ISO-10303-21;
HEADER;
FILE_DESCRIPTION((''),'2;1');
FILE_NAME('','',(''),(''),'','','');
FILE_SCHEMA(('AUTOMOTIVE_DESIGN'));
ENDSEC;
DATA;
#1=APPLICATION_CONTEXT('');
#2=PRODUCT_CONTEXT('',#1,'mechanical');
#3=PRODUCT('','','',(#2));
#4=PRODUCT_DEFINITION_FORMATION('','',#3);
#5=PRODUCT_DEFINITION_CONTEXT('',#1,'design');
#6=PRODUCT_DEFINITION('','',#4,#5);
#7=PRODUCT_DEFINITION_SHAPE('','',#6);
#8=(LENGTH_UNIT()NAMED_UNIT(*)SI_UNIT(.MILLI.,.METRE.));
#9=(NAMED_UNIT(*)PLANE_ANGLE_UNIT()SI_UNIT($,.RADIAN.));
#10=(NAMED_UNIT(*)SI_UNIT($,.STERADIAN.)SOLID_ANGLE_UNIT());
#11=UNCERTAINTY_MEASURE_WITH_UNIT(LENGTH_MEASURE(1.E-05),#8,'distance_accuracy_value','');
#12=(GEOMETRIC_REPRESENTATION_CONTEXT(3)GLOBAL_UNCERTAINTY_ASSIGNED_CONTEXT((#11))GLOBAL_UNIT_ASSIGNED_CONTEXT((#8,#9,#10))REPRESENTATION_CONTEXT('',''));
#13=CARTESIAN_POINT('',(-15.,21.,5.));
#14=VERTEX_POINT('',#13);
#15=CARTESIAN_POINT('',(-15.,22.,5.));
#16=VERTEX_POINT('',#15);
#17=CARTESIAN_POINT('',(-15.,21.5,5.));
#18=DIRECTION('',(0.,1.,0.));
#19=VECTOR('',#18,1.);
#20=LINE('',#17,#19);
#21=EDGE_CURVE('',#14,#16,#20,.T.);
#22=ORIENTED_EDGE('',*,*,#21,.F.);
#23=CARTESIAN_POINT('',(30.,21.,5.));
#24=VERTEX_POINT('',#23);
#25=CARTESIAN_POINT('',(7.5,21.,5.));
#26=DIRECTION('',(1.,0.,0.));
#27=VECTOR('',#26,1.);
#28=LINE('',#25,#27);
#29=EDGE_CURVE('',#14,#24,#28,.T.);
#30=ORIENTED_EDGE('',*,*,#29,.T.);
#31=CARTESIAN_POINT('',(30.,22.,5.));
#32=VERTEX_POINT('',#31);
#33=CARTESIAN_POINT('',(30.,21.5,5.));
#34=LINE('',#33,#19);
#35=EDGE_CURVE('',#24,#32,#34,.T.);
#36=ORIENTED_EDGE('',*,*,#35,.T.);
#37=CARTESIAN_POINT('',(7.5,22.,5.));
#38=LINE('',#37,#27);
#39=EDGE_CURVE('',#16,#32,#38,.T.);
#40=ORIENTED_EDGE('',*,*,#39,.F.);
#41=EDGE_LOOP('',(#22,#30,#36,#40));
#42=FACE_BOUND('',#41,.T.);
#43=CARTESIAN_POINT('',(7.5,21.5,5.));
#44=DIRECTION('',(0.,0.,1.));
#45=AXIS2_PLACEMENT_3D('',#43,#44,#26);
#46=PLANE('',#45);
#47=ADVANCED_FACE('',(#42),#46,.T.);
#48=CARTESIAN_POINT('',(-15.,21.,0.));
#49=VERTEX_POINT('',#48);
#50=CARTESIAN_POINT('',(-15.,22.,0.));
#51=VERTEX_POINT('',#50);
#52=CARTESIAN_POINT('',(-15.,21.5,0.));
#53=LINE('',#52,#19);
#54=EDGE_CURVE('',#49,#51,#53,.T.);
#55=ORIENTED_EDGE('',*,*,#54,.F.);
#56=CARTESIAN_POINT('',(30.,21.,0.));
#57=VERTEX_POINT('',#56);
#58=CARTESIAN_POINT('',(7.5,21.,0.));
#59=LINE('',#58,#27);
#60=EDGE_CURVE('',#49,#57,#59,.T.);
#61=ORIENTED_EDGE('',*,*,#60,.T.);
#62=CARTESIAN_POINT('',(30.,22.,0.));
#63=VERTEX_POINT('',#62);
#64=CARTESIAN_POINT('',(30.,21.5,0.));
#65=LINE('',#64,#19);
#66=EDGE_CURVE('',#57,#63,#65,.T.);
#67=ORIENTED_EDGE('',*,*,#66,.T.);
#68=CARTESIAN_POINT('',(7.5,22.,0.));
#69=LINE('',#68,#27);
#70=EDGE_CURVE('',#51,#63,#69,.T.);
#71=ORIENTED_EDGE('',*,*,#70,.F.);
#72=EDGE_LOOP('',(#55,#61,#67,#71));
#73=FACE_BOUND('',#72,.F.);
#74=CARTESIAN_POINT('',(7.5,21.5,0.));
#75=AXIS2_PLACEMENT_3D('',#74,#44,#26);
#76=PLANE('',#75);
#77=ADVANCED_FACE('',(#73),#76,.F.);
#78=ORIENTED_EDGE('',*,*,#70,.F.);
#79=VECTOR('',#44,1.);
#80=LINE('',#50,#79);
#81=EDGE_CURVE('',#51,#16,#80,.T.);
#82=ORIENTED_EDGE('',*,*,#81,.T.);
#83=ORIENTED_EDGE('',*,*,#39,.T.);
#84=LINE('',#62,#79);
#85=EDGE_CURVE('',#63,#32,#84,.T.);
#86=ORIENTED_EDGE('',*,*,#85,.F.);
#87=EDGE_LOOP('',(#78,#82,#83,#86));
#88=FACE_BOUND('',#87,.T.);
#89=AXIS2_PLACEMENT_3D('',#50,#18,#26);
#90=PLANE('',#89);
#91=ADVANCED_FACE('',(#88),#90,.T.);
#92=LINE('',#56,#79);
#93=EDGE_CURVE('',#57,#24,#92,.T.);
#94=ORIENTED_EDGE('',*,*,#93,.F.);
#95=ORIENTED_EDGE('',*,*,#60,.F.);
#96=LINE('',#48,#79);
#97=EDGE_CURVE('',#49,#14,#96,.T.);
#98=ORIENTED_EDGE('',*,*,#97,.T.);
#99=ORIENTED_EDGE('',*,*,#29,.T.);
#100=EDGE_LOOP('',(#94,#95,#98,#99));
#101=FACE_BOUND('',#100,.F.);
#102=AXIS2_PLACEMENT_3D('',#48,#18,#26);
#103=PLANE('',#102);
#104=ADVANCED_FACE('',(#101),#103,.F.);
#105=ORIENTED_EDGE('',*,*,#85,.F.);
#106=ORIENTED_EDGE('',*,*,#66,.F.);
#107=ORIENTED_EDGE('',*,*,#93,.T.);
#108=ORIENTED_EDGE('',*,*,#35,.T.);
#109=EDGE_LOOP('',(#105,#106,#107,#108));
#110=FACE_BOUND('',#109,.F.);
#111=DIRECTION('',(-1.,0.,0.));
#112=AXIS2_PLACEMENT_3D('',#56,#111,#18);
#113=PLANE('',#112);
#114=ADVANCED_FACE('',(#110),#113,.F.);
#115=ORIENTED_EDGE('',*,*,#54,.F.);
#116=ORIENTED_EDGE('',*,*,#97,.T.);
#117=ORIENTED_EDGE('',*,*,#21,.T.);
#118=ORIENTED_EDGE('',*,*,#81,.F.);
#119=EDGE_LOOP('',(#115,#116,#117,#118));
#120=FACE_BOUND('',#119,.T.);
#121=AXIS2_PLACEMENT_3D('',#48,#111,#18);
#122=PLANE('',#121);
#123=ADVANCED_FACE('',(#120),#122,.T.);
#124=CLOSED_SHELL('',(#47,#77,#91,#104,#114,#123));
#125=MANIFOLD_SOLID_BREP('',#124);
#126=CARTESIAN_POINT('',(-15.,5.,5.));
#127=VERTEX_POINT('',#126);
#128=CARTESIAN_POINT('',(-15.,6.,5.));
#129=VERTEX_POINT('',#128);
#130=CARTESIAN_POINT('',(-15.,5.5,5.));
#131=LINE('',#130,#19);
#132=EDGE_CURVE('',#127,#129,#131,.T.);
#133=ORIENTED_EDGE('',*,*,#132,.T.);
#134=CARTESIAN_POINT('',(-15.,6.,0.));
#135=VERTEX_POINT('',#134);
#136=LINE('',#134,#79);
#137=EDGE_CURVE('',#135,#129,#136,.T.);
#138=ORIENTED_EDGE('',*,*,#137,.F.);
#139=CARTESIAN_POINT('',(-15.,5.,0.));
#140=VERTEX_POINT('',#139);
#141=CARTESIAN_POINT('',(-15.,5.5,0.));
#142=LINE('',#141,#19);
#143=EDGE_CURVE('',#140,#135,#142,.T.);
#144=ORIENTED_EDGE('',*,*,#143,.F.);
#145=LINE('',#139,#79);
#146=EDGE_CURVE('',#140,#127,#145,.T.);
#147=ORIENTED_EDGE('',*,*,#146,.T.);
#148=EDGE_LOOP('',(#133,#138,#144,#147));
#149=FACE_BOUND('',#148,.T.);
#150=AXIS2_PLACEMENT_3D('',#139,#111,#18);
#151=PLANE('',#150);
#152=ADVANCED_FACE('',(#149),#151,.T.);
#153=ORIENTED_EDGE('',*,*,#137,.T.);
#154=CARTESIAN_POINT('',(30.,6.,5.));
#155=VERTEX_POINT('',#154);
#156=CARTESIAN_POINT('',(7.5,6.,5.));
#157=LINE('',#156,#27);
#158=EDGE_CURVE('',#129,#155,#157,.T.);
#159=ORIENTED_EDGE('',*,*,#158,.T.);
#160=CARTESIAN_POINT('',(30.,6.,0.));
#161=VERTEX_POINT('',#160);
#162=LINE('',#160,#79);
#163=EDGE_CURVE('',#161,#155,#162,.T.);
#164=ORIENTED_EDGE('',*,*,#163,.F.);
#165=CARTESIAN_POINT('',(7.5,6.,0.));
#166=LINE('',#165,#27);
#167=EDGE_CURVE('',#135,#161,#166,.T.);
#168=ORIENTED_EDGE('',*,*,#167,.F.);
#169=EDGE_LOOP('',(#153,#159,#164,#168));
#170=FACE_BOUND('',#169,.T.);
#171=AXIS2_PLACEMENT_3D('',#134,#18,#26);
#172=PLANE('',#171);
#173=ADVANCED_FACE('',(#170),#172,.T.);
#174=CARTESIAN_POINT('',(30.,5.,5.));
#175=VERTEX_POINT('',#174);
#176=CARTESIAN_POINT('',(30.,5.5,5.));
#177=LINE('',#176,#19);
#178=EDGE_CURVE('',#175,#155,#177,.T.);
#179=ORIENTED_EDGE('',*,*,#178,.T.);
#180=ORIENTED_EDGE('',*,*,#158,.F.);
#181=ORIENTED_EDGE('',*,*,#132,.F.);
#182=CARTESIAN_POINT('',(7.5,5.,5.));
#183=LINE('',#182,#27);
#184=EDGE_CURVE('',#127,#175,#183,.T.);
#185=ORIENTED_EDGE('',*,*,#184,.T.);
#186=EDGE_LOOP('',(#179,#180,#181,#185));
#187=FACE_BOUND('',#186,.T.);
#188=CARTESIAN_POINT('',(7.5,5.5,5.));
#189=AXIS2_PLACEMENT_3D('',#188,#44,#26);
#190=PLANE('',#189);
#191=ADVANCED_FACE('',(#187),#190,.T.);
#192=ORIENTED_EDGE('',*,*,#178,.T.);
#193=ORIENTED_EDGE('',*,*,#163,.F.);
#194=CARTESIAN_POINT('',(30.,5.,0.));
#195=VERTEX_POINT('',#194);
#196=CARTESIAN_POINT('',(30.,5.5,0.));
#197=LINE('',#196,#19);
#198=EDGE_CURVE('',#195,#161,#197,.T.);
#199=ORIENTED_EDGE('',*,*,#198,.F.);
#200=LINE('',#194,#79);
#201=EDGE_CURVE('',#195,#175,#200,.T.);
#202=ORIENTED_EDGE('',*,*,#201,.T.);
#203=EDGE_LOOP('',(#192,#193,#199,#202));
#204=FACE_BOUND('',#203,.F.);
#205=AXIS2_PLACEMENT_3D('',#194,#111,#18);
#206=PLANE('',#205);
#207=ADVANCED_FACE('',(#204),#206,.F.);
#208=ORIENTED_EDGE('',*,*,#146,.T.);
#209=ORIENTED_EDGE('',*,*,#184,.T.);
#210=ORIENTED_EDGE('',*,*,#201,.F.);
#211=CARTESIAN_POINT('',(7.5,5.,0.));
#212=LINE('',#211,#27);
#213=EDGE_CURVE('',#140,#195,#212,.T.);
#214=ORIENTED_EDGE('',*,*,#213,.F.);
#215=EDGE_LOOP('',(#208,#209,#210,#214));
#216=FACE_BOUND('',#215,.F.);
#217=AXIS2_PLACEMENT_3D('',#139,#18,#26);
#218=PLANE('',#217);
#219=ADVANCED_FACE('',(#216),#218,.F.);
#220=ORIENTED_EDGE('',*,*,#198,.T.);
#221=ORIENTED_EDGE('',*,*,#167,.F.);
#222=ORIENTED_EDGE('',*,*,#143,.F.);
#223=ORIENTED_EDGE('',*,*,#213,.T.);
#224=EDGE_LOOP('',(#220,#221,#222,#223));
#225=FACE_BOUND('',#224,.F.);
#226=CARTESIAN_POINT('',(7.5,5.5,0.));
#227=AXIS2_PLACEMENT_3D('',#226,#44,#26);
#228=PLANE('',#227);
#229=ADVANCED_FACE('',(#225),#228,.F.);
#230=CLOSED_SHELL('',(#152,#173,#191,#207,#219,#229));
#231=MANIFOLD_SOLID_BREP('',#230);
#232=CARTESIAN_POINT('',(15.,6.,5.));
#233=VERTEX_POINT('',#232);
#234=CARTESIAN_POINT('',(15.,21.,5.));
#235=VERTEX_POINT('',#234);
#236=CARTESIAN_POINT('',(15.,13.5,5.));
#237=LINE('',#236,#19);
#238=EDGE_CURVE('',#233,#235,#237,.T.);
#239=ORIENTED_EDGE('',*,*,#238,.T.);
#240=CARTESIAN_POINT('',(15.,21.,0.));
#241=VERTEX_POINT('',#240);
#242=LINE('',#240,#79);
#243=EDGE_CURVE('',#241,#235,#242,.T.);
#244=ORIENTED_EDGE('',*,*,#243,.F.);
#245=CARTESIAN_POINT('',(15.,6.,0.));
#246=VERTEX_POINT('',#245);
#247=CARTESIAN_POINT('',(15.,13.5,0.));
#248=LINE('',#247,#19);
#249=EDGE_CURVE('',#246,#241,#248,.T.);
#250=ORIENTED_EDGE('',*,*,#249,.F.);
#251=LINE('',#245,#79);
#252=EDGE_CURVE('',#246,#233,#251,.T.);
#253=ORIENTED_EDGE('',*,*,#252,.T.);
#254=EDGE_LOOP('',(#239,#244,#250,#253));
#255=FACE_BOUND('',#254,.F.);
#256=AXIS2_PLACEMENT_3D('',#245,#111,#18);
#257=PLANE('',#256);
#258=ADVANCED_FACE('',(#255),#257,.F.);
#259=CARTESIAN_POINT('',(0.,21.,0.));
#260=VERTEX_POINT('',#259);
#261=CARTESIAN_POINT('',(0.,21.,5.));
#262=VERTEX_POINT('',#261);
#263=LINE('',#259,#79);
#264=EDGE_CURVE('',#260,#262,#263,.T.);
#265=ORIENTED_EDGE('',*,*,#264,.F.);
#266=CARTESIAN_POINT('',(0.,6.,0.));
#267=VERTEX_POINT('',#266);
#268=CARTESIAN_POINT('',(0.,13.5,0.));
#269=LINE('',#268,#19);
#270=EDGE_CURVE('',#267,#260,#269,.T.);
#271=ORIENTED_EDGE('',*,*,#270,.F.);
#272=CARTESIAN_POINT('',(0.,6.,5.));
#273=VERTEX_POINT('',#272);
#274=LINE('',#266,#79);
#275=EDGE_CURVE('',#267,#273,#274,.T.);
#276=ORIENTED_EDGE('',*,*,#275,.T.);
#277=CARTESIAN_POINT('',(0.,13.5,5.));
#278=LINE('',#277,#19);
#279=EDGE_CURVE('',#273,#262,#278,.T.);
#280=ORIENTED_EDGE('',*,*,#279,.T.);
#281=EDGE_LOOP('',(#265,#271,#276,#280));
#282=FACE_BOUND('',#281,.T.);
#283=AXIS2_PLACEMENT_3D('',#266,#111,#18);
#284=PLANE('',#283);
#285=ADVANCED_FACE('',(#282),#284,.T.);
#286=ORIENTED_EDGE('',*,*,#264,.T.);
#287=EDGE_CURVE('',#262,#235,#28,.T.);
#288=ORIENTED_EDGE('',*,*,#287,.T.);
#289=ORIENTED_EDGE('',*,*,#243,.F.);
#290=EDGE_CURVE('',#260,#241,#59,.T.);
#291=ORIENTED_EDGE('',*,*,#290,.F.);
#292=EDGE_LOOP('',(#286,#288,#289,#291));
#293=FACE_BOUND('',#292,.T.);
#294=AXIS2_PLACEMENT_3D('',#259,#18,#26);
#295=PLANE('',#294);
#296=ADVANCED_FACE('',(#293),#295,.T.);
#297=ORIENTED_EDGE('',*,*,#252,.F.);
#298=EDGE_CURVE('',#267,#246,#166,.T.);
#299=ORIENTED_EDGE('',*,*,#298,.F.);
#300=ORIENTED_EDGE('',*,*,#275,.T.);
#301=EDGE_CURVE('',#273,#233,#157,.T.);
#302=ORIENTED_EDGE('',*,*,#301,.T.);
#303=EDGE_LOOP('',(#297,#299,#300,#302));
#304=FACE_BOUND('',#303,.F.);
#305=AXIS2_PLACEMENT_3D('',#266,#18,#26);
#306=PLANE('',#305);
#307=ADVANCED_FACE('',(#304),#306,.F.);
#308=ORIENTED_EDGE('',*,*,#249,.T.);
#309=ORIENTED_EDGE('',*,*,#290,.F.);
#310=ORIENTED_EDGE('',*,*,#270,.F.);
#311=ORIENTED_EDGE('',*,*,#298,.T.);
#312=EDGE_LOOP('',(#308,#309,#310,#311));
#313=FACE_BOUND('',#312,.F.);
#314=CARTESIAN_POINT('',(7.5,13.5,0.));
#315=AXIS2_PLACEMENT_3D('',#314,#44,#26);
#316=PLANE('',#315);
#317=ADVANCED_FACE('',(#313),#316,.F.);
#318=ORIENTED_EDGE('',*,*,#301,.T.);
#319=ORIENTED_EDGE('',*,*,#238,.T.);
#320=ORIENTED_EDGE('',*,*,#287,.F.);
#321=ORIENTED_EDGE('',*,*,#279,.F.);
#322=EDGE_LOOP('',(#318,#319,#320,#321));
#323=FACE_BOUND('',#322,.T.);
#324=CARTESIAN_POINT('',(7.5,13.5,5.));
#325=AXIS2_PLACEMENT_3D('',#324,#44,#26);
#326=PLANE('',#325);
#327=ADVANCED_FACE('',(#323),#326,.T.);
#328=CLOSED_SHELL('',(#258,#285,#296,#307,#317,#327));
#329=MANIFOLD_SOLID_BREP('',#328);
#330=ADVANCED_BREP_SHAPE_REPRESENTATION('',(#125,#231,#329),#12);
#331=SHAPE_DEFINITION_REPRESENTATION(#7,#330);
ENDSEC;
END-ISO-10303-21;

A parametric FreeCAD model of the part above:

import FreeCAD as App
import Part
import Sketcher
from FreeCAD import Vector
Q = App.Units.Quantity


def add_polygon(sketch, points):
    """Adds a closed chain of lines whose ends are joined by coincident constraints."""
    first, n = sketch.GeometryCount, len(points)
    for a, b in zip(points, points[1:] + points[:1]):
        sketch.addGeometry(Part.LineSegment(App.Vector(*a, 0), App.Vector(*b, 0)), False)
    for i in range(n):
        sketch.addConstraint(Sketcher.Constraint("Coincident", first + i, 2, first + (i + 1) % n, 1))

doc = App.newDocument("Part")
body = doc.addObject("PartDesign::Body", "Body")

# Sketch on XY plane
sketch1 = doc.addObject("Sketcher::SketchObject", "Sketch")
body.addObject(sketch1)
sketch1.AttachmentSupport = (doc.XY_Plane, [""])
sketch1.MapMode = "FlatFace"
add_polygon(sketch1, [(0, 21), (0, 6), (15, 6), (15, 21)])  # lines 0-3
sketch1.addConstraint([
    Sketcher.Constraint("Vertical", 0),
    Sketcher.Constraint("Horizontal", 1),
    Sketcher.Constraint("Vertical", 2),
    Sketcher.Constraint("Horizontal", 3),
    Sketcher.Constraint("PointOnObject", 0, 2, -2),
    Sketcher.Constraint("Equal", 3, 0),
    Sketcher.Constraint("DistanceX", 1, 1, 1, 2, Q("15 mm")),
    Sketcher.Constraint("DistanceY", -1, 1, 0, 2, Q("6 mm")),
])
pad1 = doc.addObject("PartDesign::Pad", "Pad")
body.addObject(pad1)
pad1.Profile = sketch1
pad1.Length = 5
body2 = doc.addObject("PartDesign::Body", "Body001")

# Sketch on XY plane
sketch2 = doc.addObject("Sketcher::SketchObject", "Sketch001")
body2.addObject(sketch2)
sketch2.AttachmentSupport = (doc.getObject("XY_Plane001"), [""])
sketch2.MapMode = "FlatFace"
add_polygon(sketch2, [(-15, 6), (-15, 5), (30, 5), (30, 6)])  # lines 0-3
sketch2.addConstraint([
    Sketcher.Constraint("Vertical", 0),
    Sketcher.Constraint("Horizontal", 1),
    Sketcher.Constraint("Vertical", 2),
    Sketcher.Constraint("Horizontal", 3),
    Sketcher.Constraint("DistanceX", 1, 1, 1, 2, Q("45 mm")),
    Sketcher.Constraint("DistanceY", 0, 2, 0, 1, Q("1 mm")),
    Sketcher.Constraint("DistanceX", 0, 2, -1, 1, Q("15 mm")),
    Sketcher.Constraint("DistanceY", -1, 1, 0, 2, Q("5 mm")),
])
pad2 = doc.addObject("PartDesign::Pad", "Pad001")
body2.addObject(pad2)
pad2.Profile = sketch2
pad2.Length = 5
body3 = doc.addObject("PartDesign::Body", "Body002")

# Sketch on XY plane
sketch3 = doc.addObject("Sketcher::SketchObject", "Sketch002")
body3.addObject(sketch3)
sketch3.AttachmentSupport = (doc.getObject("XY_Plane002"), [""])
sketch3.MapMode = "FlatFace"
add_polygon(sketch3, [(-15, 22), (-15, 21), (30, 21), (30, 22)])  # lines 0-3
sketch3.addConstraint([
    Sketcher.Constraint("Vertical", 0),
    Sketcher.Constraint("Horizontal", 1),
    Sketcher.Constraint("Vertical", 2),
    Sketcher.Constraint("Horizontal", 3),
    Sketcher.Constraint("DistanceX", 1, 1, 1, 2, Q("45 mm")),
    Sketcher.Constraint("DistanceY", 0, 2, 0, 1, Q("1 mm")),
    Sketcher.Constraint("DistanceX", 0, 2, -1, 1, Q("15 mm")),
    Sketcher.Constraint("DistanceY", -1, 1, 0, 2, Q("21 mm")),
])
pad3 = doc.addObject("PartDesign::Pad", "Pad002")
body3.addObject(pad3)
pad3.Profile = sketch3
pad3.Length = 5

doc.recompute()
